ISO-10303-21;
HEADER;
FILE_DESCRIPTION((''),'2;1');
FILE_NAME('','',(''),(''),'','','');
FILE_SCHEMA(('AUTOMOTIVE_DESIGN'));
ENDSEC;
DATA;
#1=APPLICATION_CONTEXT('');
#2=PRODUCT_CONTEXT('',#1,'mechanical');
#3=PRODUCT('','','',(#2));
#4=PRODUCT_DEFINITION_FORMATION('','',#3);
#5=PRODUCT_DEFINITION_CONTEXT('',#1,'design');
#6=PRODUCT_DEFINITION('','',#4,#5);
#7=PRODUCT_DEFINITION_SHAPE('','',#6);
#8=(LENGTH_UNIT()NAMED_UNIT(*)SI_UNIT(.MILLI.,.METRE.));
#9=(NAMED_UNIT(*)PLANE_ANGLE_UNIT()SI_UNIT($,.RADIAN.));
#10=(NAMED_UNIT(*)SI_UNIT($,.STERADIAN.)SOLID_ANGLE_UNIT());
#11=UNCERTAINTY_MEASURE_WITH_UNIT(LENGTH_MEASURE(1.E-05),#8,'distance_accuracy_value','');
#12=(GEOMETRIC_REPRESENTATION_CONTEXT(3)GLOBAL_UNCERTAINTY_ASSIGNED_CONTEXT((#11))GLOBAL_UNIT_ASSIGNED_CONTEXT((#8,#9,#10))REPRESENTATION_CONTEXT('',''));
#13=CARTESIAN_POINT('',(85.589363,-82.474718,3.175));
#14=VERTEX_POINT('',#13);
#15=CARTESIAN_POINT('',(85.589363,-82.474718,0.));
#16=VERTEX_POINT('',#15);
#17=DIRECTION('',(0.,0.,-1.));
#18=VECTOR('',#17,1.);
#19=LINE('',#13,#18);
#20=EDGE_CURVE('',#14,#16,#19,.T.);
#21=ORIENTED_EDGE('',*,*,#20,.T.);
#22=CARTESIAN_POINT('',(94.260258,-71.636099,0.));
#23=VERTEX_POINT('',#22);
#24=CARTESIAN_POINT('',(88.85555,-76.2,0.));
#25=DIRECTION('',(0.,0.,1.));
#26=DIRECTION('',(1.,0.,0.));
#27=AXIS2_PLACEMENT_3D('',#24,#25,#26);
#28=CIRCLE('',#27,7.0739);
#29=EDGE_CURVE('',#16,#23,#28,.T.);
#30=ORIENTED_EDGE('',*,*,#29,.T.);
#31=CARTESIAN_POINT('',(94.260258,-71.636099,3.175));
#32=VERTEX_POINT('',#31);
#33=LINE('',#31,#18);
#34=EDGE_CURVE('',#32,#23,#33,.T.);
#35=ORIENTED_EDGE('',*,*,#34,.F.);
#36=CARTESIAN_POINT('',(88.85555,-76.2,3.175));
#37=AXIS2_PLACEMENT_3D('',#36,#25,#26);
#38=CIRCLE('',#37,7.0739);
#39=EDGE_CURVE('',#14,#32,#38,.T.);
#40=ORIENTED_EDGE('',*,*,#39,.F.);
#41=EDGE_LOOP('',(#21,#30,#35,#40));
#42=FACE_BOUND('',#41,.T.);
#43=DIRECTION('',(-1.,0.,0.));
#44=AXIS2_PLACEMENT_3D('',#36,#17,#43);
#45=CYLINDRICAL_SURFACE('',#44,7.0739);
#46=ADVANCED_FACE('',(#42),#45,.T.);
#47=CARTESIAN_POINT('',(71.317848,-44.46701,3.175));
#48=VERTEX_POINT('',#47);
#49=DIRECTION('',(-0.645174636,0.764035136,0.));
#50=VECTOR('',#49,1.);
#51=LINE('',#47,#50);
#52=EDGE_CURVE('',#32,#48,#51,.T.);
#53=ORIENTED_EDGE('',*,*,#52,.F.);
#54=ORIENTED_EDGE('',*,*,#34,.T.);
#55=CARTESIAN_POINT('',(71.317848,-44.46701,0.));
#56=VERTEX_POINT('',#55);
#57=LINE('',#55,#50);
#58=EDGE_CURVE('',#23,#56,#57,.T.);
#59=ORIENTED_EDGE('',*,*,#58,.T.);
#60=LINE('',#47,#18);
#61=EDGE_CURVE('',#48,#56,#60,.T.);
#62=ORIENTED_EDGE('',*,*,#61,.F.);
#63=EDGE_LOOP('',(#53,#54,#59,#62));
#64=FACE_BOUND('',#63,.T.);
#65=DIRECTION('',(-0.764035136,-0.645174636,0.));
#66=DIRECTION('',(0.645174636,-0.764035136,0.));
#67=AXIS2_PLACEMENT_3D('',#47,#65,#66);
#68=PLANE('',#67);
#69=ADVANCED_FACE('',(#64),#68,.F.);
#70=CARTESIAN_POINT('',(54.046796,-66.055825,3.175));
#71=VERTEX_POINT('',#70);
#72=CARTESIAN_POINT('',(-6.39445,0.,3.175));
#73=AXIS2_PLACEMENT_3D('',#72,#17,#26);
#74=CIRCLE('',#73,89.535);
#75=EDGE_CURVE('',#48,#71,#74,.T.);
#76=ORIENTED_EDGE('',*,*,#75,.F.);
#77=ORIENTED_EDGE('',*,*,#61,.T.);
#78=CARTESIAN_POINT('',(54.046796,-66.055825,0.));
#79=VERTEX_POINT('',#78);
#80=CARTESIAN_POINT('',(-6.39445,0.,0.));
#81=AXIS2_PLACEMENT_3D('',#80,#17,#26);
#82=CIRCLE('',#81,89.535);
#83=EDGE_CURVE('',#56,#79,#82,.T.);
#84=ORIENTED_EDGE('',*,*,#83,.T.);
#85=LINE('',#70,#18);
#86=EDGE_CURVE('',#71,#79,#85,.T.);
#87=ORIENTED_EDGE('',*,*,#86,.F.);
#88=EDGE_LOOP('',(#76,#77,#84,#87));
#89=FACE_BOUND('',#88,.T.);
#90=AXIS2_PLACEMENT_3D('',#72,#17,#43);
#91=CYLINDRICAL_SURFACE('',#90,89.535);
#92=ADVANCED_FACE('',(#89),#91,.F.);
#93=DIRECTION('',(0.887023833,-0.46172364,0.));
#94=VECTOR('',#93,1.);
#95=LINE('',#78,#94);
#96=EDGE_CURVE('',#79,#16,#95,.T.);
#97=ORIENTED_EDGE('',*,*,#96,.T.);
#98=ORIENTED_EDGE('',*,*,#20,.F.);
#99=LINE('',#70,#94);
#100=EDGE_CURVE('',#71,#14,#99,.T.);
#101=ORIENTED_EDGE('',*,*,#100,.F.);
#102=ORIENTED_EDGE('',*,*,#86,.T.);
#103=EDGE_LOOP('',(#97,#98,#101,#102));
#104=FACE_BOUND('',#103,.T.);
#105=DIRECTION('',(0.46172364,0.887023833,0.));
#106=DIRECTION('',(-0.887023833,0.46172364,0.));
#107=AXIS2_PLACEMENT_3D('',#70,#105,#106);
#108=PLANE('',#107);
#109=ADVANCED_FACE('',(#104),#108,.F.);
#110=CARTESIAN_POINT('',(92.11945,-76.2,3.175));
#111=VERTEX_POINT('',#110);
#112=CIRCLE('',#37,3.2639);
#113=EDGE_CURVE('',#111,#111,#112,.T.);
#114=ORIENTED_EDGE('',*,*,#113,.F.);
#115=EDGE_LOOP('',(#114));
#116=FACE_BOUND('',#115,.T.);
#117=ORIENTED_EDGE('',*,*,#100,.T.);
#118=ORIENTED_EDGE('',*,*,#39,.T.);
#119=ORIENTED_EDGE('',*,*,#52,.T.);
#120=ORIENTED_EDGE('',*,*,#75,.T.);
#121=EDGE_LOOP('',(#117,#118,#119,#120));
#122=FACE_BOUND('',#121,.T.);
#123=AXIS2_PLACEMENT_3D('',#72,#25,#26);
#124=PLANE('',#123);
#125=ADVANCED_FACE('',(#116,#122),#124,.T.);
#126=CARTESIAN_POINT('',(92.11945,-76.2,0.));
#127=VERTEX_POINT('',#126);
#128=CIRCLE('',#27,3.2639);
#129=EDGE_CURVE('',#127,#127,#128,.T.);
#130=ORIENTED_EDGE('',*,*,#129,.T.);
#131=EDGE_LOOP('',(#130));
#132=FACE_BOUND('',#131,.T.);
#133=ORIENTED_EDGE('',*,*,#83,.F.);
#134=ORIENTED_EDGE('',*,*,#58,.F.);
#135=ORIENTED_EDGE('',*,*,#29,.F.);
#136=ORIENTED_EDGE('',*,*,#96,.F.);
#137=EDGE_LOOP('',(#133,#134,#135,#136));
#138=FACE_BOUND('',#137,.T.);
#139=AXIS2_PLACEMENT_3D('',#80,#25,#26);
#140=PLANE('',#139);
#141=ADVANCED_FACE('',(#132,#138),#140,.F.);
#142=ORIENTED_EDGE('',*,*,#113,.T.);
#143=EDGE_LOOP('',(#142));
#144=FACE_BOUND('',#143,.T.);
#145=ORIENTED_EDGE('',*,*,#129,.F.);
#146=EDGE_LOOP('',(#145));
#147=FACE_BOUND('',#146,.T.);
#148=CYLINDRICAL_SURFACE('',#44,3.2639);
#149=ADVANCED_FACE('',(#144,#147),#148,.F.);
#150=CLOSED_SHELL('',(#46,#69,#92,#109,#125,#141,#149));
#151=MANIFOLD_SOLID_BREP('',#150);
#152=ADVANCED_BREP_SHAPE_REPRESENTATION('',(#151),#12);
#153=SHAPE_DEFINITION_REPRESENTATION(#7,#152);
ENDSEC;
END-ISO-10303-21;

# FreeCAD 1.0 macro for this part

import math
import FreeCAD as App
import Part
import Sketcher
Q = App.Units.Quantity

doc = App.newDocument("Part")
body = doc.addObject("PartDesign::Body", "Body")

# Sketch on XY plane
sketch1 = body.newObject("Sketcher::SketchObject", "Sketch")
sketch1.AttachmentSupport = (doc.getObject("XY_Plane"), [""])
sketch1.MapMode = "FlatFace"
sketch1.addGeometry(Part.LineSegment(App.Vector(54, -66.1, 0), App.Vector(85.6, -82.5, 0)), False)
sketch1.addGeometry(Part.ArcOfCircle(Part.Circle(App.Vector(88.9, -76.2, 0), App.Vector(0, 0, 1), 7.1), math.radians(-117), math.radians(40)), False)
sketch1.addGeometry(Part.LineSegment(App.Vector(94.3, -71.6, 0), App.Vector(71.3, -44.5, 0)), False)
sketch1.addGeometry(Part.ArcOfCircle(Part.Circle(App.Vector(-6.4, 0, 0), App.Vector(0, 0, 1), 89.5), math.radians(-47.54), math.radians(-29.78)), False)
sketch1.addGeometry(Part.Circle(App.Vector(88.9, -76.2, 0), App.Vector(0, 0, 1), 3.3), False)
sketch1.addConstraint(Sketcher.Constraint("Tangent", 0, 2, 1, 1))
sketch1.addConstraint(Sketcher.Constraint("Tangent", 1, 2, 2, 1))
sketch1.addConstraint(Sketcher.Constraint("Coincident", 2, 2, 3, 2))
sketch1.addConstraint(Sketcher.Constraint("Coincident", 3, 1, 0, 1))
sketch1.addConstraint(Sketcher.Constraint("Coincident", 4, 3, 1, 3))
sketch1.addConstraint(Sketcher.Constraint("PointOnObject", 3, 3, -1))
sketch1.addConstraint(Sketcher.Constraint("Equal", 0, 2))
sketch1.addConstraint(Sketcher.Constraint("Diameter", 4, Q("0.257 in")))
sketch1.addConstraint(Sketcher.Constraint("DistanceY", 1, 3, -1, 1, Q("3 in")))
sketch1.addConstraint(Sketcher.Constraint("Radius", 3, Q("3.525 in")))
sketch1.addConstraint(Sketcher.Constraint("Distance", 0, Q("1.4 in")))
sketch1.addConstraint(Sketcher.Constraint("Radius", 1, Q("0.2785 in")))
sketch1.addConstraint(Sketcher.Constraint("DistanceX", 3, 3, 1, 3, Q("3.75 in")))
sketch1.addConstraint(Sketcher.Constraint("DistanceX", -1, 1, 1, 3, 88.85555))
pad1 = body.newObject("PartDesign::Pad", "Pad")
pad1.Profile = sketch1
pad1.Length = Q("0.125 in")

doc.recompute()
